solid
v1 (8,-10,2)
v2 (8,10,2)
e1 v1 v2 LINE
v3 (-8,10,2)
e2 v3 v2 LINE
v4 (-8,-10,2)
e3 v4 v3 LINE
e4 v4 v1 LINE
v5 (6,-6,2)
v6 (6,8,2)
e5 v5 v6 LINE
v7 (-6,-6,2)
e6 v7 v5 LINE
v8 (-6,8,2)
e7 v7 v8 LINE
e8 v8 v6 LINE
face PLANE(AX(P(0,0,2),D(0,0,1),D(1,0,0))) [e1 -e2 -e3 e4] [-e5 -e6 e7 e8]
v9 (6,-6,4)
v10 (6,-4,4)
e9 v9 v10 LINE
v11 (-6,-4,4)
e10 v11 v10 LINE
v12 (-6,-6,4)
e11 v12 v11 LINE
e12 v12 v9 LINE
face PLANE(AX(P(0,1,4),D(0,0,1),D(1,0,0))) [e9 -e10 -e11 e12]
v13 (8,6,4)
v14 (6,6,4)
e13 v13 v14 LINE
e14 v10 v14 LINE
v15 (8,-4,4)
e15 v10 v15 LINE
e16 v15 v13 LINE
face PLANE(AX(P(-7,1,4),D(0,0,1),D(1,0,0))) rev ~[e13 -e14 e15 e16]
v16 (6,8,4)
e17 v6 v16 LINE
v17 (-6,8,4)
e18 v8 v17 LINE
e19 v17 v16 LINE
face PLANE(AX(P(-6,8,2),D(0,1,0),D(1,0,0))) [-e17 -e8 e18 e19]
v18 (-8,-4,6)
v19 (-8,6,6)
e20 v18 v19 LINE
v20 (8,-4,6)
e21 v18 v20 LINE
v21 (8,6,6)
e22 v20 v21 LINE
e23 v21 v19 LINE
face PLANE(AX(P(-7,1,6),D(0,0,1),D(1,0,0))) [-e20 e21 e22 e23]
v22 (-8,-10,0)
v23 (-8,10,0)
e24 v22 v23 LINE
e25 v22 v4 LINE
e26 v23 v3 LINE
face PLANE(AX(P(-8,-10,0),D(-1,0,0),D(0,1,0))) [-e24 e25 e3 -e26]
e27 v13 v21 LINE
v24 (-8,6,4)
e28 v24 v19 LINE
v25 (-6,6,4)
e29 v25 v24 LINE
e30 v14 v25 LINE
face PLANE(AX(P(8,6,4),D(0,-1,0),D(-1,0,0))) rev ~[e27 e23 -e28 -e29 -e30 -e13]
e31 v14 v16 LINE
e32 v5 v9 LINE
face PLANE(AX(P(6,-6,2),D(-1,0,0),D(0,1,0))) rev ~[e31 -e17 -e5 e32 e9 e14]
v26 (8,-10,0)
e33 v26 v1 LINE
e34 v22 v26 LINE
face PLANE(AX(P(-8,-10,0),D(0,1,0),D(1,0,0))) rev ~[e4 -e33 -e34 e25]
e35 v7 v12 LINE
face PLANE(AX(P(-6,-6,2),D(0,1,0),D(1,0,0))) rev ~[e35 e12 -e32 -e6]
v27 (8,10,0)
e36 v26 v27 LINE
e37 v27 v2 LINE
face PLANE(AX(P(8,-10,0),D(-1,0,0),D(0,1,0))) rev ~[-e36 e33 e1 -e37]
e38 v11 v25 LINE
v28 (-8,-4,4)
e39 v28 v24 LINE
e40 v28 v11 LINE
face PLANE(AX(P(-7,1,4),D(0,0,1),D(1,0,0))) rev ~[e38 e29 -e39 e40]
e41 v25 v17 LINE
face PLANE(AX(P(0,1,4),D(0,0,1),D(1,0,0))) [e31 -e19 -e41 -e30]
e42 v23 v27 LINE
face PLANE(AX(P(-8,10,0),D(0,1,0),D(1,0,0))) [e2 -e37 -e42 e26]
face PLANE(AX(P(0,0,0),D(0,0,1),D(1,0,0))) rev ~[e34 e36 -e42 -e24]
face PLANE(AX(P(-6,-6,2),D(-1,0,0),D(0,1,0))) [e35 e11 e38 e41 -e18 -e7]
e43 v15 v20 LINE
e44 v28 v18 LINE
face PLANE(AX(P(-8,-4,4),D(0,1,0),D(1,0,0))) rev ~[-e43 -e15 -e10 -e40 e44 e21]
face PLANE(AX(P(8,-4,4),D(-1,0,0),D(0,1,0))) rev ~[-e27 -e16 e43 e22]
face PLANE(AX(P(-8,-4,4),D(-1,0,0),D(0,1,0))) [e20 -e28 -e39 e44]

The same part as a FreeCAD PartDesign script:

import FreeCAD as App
import Part
import Sketcher

V = App.Vector
Q = App.Units.Quantity

doc = App.newDocument("Part")
params = doc.addObject("Spreadsheet::Sheet", "Params")
for row, (alias, value) in enumerate([
    ("sketch1_width", "16 mm"),
    ("sketch1_height", "20 mm"),
    ("pad1_length", "2 mm"),
    ("sketch2_width", "12 mm"),
    ("sketch2_height", "14 mm"),
    ("pad2_length", "2 mm"),
    ("sketch3_width", "16 mm"),
    ("sketch3_height", "10 mm"),
    ("pad3_length", "2 mm"),
], start=1):
    params.set(f"A{row}", alias)
    params.set(f"B{row}", "=" + value)
    params.setAlias(f"B{row}", alias)

body = doc.addObject("PartDesign::Body", "Body")

sketch1 = body.newObject("Sketcher::SketchObject", "Sketch")
sketch1.AttachmentSupport = (doc.getObject("XY_Plane"), [""])
sketch1.MapMode = "FlatFace"
sketch1.addGeometry(Part.LineSegment(V(-8, 10, 0), V(-8, -10, 0)), False)
sketch1.addGeometry(Part.LineSegment(V(-8, -10, 0), V(8, -10, 0)), False)
sketch1.addGeometry(Part.LineSegment(V(8, -10, 0), V(8, 10, 0)), False)
sketch1.addGeometry(Part.LineSegment(V(8, 10, 0), V(-8, 10, 0)), False)
sketch1.addConstraint(Sketcher.Constraint("Coincident", 0, 2, 1, 1))
sketch1.addConstraint(Sketcher.Constraint("Coincident", 1, 2, 2, 1))
sketch1.addConstraint(Sketcher.Constraint("Coincident", 2, 2, 3, 1))
sketch1.addConstraint(Sketcher.Constraint("Coincident", 3, 2, 0, 1))
sketch1.addConstraint(Sketcher.Constraint("Vertical", 0))
sketch1.addConstraint(Sketcher.Constraint("Horizontal", 1))
sketch1.addConstraint(Sketcher.Constraint("Vertical", 2))
sketch1.addConstraint(Sketcher.Constraint("Horizontal", 3))
sketch1.addConstraint(Sketcher.Constraint("Symmetric", 0, 2, 2, 2, -1, 1))
sketch1.addConstraint(Sketcher.Constraint("DistanceX", 1, 1, 1, 2, Q("16 mm")))
sketch1.addConstraint(Sketcher.Constraint("DistanceY", 0, 2, 0, 1, Q("20 mm")))
sketch1.setExpression("Constraints[9]", "Params.sketch1_width")
sketch1.setExpression("Constraints[10]", "Params.sketch1_height")
pad1 = body.newObject("PartDesign::Pad", "Pad")
pad1.Profile = sketch1
pad1.setExpression("Length", "Params.pad1_length")

sketch2 = body.newObject("Sketcher::SketchObject", "Sketch001")
sketch2.AttachmentSupport = (doc.getObject("XY_Plane"), [""])
sketch2.MapMode = "FlatFace"
sketch2.AttachmentOffset = App.Placement(V(0, 0, 2), App.Rotation())
sketch2.addGeometry(Part.LineSegment(V(-6, 8, 0), V(-6, -6, 0)), False)
sketch2.addGeometry(Part.LineSegment(V(-6, -6, 0), V(6, -6, 0)), False)
sketch2.addGeometry(Part.LineSegment(V(6, -6, 0), V(6, 8, 0)), False)
sketch2.addGeometry(Part.LineSegment(V(6, 8, 0), V(-6, 8, 0)), False)
sketch2.addConstraint(Sketcher.Constraint("Coincident", 0, 2, 1, 1))
sketch2.addConstraint(Sketcher.Constraint("Coincident", 1, 2, 2, 1))
sketch2.addConstraint(Sketcher.Constraint("Coincident", 2, 2, 3, 1))
sketch2.addConstraint(Sketcher.Constraint("Coincident", 3, 2, 0, 1))
sketch2.addConstraint(Sketcher.Constraint("Vertical", 0))
sketch2.addConstraint(Sketcher.Constraint("Horizontal", 1))
sketch2.addConstraint(Sketcher.Constraint("Vertical", 2))
sketch2.addConstraint(Sketcher.Constraint("Horizontal", 3))
sketch2.addConstraint(Sketcher.Constraint("DistanceX", 1, 1, 1, 2, Q("12 mm")))
sketch2.addConstraint(Sketcher.Constraint("DistanceY", 0, 2, 0, 1, Q("14 mm")))
sketch2.addConstraint(Sketcher.Constraint("DistanceX", 0, 2, -1, 1, Q("6 mm")))
sketch2.addConstraint(Sketcher.Constraint("DistanceY", 0, 2, -1, 1, Q("6 mm")))
sketch2.setExpression("Constraints[8]", "Params.sketch2_width")
sketch2.setExpression("Constraints[9]", "Params.sketch2_height")
pad2 = body.newObject("PartDesign::Pad", "Pad001")
pad2.Profile = sketch2
pad2.setExpression("Length", "Params.pad2_length")

sketch3 = body.newObject("Sketcher::SketchObject", "Sketch002")
sketch3.AttachmentSupport = (doc.getObject("XY_Plane"), [""])
sketch3.MapMode = "FlatFace"
sketch3.AttachmentOffset = App.Placement(V(0, 0, 4), App.Rotation())
sketch3.addGeometry(Part.LineSegment(V(-8, 6, 0), V(-8, -4, 0)), False)
sketch3.addGeometry(Part.LineSegment(V(-8, -4, 0), V(8, -4, 0)), False)
sketch3.addGeometry(Part.LineSegment(V(8, -4, 0), V(8, 6, 0)), False)
sketch3.addGeometry(Part.LineSegment(V(8, 6, 0), V(-8, 6, 0)), False)
sketch3.addConstraint(Sketcher.Constraint("Coincident", 0, 2, 1, 1))
sketch3.addConstraint(Sketcher.Constraint("Coincident", 1, 2, 2, 1))
sketch3.addConstraint(Sketcher.Constraint("Coincident", 2, 2, 3, 1))
sketch3.addConstraint(Sketcher.Constraint("Coincident", 3, 2, 0, 1))
sketch3.addConstraint(Sketcher.Constraint("Vertical", 0))
sketch3.addConstraint(Sketcher.Constraint("Horizontal", 1))
sketch3.addConstraint(Sketcher.Constraint("Vertical", 2))
sketch3.addConstraint(Sketcher.Constraint("Horizontal", 3))
sketch3.addConstraint(Sketcher.Constraint("DistanceX", 1, 1, 1, 2, Q("16 mm")))
sketch3.addConstraint(Sketcher.Constraint("DistanceY", 0, 2, 0, 1, Q("10 mm")))
sketch3.addConstraint(Sketcher.Constraint("DistanceX", 0, 2, -1, 1, Q("8 mm")))
sketch3.addConstraint(Sketcher.Constraint("DistanceY", 0, 2, -1, 1, Q("4 mm")))
sketch3.setExpression("Constraints[8]", "Params.sketch3_width")
sketch3.setExpression("Constraints[9]", "Params.sketch3_height")
pad3 = body.newObject("PartDesign::Pad", "Pad002")
pad3.Profile = sketch3
pad3.setExpression("Length", "Params.pad3_length")

doc.recompute()
